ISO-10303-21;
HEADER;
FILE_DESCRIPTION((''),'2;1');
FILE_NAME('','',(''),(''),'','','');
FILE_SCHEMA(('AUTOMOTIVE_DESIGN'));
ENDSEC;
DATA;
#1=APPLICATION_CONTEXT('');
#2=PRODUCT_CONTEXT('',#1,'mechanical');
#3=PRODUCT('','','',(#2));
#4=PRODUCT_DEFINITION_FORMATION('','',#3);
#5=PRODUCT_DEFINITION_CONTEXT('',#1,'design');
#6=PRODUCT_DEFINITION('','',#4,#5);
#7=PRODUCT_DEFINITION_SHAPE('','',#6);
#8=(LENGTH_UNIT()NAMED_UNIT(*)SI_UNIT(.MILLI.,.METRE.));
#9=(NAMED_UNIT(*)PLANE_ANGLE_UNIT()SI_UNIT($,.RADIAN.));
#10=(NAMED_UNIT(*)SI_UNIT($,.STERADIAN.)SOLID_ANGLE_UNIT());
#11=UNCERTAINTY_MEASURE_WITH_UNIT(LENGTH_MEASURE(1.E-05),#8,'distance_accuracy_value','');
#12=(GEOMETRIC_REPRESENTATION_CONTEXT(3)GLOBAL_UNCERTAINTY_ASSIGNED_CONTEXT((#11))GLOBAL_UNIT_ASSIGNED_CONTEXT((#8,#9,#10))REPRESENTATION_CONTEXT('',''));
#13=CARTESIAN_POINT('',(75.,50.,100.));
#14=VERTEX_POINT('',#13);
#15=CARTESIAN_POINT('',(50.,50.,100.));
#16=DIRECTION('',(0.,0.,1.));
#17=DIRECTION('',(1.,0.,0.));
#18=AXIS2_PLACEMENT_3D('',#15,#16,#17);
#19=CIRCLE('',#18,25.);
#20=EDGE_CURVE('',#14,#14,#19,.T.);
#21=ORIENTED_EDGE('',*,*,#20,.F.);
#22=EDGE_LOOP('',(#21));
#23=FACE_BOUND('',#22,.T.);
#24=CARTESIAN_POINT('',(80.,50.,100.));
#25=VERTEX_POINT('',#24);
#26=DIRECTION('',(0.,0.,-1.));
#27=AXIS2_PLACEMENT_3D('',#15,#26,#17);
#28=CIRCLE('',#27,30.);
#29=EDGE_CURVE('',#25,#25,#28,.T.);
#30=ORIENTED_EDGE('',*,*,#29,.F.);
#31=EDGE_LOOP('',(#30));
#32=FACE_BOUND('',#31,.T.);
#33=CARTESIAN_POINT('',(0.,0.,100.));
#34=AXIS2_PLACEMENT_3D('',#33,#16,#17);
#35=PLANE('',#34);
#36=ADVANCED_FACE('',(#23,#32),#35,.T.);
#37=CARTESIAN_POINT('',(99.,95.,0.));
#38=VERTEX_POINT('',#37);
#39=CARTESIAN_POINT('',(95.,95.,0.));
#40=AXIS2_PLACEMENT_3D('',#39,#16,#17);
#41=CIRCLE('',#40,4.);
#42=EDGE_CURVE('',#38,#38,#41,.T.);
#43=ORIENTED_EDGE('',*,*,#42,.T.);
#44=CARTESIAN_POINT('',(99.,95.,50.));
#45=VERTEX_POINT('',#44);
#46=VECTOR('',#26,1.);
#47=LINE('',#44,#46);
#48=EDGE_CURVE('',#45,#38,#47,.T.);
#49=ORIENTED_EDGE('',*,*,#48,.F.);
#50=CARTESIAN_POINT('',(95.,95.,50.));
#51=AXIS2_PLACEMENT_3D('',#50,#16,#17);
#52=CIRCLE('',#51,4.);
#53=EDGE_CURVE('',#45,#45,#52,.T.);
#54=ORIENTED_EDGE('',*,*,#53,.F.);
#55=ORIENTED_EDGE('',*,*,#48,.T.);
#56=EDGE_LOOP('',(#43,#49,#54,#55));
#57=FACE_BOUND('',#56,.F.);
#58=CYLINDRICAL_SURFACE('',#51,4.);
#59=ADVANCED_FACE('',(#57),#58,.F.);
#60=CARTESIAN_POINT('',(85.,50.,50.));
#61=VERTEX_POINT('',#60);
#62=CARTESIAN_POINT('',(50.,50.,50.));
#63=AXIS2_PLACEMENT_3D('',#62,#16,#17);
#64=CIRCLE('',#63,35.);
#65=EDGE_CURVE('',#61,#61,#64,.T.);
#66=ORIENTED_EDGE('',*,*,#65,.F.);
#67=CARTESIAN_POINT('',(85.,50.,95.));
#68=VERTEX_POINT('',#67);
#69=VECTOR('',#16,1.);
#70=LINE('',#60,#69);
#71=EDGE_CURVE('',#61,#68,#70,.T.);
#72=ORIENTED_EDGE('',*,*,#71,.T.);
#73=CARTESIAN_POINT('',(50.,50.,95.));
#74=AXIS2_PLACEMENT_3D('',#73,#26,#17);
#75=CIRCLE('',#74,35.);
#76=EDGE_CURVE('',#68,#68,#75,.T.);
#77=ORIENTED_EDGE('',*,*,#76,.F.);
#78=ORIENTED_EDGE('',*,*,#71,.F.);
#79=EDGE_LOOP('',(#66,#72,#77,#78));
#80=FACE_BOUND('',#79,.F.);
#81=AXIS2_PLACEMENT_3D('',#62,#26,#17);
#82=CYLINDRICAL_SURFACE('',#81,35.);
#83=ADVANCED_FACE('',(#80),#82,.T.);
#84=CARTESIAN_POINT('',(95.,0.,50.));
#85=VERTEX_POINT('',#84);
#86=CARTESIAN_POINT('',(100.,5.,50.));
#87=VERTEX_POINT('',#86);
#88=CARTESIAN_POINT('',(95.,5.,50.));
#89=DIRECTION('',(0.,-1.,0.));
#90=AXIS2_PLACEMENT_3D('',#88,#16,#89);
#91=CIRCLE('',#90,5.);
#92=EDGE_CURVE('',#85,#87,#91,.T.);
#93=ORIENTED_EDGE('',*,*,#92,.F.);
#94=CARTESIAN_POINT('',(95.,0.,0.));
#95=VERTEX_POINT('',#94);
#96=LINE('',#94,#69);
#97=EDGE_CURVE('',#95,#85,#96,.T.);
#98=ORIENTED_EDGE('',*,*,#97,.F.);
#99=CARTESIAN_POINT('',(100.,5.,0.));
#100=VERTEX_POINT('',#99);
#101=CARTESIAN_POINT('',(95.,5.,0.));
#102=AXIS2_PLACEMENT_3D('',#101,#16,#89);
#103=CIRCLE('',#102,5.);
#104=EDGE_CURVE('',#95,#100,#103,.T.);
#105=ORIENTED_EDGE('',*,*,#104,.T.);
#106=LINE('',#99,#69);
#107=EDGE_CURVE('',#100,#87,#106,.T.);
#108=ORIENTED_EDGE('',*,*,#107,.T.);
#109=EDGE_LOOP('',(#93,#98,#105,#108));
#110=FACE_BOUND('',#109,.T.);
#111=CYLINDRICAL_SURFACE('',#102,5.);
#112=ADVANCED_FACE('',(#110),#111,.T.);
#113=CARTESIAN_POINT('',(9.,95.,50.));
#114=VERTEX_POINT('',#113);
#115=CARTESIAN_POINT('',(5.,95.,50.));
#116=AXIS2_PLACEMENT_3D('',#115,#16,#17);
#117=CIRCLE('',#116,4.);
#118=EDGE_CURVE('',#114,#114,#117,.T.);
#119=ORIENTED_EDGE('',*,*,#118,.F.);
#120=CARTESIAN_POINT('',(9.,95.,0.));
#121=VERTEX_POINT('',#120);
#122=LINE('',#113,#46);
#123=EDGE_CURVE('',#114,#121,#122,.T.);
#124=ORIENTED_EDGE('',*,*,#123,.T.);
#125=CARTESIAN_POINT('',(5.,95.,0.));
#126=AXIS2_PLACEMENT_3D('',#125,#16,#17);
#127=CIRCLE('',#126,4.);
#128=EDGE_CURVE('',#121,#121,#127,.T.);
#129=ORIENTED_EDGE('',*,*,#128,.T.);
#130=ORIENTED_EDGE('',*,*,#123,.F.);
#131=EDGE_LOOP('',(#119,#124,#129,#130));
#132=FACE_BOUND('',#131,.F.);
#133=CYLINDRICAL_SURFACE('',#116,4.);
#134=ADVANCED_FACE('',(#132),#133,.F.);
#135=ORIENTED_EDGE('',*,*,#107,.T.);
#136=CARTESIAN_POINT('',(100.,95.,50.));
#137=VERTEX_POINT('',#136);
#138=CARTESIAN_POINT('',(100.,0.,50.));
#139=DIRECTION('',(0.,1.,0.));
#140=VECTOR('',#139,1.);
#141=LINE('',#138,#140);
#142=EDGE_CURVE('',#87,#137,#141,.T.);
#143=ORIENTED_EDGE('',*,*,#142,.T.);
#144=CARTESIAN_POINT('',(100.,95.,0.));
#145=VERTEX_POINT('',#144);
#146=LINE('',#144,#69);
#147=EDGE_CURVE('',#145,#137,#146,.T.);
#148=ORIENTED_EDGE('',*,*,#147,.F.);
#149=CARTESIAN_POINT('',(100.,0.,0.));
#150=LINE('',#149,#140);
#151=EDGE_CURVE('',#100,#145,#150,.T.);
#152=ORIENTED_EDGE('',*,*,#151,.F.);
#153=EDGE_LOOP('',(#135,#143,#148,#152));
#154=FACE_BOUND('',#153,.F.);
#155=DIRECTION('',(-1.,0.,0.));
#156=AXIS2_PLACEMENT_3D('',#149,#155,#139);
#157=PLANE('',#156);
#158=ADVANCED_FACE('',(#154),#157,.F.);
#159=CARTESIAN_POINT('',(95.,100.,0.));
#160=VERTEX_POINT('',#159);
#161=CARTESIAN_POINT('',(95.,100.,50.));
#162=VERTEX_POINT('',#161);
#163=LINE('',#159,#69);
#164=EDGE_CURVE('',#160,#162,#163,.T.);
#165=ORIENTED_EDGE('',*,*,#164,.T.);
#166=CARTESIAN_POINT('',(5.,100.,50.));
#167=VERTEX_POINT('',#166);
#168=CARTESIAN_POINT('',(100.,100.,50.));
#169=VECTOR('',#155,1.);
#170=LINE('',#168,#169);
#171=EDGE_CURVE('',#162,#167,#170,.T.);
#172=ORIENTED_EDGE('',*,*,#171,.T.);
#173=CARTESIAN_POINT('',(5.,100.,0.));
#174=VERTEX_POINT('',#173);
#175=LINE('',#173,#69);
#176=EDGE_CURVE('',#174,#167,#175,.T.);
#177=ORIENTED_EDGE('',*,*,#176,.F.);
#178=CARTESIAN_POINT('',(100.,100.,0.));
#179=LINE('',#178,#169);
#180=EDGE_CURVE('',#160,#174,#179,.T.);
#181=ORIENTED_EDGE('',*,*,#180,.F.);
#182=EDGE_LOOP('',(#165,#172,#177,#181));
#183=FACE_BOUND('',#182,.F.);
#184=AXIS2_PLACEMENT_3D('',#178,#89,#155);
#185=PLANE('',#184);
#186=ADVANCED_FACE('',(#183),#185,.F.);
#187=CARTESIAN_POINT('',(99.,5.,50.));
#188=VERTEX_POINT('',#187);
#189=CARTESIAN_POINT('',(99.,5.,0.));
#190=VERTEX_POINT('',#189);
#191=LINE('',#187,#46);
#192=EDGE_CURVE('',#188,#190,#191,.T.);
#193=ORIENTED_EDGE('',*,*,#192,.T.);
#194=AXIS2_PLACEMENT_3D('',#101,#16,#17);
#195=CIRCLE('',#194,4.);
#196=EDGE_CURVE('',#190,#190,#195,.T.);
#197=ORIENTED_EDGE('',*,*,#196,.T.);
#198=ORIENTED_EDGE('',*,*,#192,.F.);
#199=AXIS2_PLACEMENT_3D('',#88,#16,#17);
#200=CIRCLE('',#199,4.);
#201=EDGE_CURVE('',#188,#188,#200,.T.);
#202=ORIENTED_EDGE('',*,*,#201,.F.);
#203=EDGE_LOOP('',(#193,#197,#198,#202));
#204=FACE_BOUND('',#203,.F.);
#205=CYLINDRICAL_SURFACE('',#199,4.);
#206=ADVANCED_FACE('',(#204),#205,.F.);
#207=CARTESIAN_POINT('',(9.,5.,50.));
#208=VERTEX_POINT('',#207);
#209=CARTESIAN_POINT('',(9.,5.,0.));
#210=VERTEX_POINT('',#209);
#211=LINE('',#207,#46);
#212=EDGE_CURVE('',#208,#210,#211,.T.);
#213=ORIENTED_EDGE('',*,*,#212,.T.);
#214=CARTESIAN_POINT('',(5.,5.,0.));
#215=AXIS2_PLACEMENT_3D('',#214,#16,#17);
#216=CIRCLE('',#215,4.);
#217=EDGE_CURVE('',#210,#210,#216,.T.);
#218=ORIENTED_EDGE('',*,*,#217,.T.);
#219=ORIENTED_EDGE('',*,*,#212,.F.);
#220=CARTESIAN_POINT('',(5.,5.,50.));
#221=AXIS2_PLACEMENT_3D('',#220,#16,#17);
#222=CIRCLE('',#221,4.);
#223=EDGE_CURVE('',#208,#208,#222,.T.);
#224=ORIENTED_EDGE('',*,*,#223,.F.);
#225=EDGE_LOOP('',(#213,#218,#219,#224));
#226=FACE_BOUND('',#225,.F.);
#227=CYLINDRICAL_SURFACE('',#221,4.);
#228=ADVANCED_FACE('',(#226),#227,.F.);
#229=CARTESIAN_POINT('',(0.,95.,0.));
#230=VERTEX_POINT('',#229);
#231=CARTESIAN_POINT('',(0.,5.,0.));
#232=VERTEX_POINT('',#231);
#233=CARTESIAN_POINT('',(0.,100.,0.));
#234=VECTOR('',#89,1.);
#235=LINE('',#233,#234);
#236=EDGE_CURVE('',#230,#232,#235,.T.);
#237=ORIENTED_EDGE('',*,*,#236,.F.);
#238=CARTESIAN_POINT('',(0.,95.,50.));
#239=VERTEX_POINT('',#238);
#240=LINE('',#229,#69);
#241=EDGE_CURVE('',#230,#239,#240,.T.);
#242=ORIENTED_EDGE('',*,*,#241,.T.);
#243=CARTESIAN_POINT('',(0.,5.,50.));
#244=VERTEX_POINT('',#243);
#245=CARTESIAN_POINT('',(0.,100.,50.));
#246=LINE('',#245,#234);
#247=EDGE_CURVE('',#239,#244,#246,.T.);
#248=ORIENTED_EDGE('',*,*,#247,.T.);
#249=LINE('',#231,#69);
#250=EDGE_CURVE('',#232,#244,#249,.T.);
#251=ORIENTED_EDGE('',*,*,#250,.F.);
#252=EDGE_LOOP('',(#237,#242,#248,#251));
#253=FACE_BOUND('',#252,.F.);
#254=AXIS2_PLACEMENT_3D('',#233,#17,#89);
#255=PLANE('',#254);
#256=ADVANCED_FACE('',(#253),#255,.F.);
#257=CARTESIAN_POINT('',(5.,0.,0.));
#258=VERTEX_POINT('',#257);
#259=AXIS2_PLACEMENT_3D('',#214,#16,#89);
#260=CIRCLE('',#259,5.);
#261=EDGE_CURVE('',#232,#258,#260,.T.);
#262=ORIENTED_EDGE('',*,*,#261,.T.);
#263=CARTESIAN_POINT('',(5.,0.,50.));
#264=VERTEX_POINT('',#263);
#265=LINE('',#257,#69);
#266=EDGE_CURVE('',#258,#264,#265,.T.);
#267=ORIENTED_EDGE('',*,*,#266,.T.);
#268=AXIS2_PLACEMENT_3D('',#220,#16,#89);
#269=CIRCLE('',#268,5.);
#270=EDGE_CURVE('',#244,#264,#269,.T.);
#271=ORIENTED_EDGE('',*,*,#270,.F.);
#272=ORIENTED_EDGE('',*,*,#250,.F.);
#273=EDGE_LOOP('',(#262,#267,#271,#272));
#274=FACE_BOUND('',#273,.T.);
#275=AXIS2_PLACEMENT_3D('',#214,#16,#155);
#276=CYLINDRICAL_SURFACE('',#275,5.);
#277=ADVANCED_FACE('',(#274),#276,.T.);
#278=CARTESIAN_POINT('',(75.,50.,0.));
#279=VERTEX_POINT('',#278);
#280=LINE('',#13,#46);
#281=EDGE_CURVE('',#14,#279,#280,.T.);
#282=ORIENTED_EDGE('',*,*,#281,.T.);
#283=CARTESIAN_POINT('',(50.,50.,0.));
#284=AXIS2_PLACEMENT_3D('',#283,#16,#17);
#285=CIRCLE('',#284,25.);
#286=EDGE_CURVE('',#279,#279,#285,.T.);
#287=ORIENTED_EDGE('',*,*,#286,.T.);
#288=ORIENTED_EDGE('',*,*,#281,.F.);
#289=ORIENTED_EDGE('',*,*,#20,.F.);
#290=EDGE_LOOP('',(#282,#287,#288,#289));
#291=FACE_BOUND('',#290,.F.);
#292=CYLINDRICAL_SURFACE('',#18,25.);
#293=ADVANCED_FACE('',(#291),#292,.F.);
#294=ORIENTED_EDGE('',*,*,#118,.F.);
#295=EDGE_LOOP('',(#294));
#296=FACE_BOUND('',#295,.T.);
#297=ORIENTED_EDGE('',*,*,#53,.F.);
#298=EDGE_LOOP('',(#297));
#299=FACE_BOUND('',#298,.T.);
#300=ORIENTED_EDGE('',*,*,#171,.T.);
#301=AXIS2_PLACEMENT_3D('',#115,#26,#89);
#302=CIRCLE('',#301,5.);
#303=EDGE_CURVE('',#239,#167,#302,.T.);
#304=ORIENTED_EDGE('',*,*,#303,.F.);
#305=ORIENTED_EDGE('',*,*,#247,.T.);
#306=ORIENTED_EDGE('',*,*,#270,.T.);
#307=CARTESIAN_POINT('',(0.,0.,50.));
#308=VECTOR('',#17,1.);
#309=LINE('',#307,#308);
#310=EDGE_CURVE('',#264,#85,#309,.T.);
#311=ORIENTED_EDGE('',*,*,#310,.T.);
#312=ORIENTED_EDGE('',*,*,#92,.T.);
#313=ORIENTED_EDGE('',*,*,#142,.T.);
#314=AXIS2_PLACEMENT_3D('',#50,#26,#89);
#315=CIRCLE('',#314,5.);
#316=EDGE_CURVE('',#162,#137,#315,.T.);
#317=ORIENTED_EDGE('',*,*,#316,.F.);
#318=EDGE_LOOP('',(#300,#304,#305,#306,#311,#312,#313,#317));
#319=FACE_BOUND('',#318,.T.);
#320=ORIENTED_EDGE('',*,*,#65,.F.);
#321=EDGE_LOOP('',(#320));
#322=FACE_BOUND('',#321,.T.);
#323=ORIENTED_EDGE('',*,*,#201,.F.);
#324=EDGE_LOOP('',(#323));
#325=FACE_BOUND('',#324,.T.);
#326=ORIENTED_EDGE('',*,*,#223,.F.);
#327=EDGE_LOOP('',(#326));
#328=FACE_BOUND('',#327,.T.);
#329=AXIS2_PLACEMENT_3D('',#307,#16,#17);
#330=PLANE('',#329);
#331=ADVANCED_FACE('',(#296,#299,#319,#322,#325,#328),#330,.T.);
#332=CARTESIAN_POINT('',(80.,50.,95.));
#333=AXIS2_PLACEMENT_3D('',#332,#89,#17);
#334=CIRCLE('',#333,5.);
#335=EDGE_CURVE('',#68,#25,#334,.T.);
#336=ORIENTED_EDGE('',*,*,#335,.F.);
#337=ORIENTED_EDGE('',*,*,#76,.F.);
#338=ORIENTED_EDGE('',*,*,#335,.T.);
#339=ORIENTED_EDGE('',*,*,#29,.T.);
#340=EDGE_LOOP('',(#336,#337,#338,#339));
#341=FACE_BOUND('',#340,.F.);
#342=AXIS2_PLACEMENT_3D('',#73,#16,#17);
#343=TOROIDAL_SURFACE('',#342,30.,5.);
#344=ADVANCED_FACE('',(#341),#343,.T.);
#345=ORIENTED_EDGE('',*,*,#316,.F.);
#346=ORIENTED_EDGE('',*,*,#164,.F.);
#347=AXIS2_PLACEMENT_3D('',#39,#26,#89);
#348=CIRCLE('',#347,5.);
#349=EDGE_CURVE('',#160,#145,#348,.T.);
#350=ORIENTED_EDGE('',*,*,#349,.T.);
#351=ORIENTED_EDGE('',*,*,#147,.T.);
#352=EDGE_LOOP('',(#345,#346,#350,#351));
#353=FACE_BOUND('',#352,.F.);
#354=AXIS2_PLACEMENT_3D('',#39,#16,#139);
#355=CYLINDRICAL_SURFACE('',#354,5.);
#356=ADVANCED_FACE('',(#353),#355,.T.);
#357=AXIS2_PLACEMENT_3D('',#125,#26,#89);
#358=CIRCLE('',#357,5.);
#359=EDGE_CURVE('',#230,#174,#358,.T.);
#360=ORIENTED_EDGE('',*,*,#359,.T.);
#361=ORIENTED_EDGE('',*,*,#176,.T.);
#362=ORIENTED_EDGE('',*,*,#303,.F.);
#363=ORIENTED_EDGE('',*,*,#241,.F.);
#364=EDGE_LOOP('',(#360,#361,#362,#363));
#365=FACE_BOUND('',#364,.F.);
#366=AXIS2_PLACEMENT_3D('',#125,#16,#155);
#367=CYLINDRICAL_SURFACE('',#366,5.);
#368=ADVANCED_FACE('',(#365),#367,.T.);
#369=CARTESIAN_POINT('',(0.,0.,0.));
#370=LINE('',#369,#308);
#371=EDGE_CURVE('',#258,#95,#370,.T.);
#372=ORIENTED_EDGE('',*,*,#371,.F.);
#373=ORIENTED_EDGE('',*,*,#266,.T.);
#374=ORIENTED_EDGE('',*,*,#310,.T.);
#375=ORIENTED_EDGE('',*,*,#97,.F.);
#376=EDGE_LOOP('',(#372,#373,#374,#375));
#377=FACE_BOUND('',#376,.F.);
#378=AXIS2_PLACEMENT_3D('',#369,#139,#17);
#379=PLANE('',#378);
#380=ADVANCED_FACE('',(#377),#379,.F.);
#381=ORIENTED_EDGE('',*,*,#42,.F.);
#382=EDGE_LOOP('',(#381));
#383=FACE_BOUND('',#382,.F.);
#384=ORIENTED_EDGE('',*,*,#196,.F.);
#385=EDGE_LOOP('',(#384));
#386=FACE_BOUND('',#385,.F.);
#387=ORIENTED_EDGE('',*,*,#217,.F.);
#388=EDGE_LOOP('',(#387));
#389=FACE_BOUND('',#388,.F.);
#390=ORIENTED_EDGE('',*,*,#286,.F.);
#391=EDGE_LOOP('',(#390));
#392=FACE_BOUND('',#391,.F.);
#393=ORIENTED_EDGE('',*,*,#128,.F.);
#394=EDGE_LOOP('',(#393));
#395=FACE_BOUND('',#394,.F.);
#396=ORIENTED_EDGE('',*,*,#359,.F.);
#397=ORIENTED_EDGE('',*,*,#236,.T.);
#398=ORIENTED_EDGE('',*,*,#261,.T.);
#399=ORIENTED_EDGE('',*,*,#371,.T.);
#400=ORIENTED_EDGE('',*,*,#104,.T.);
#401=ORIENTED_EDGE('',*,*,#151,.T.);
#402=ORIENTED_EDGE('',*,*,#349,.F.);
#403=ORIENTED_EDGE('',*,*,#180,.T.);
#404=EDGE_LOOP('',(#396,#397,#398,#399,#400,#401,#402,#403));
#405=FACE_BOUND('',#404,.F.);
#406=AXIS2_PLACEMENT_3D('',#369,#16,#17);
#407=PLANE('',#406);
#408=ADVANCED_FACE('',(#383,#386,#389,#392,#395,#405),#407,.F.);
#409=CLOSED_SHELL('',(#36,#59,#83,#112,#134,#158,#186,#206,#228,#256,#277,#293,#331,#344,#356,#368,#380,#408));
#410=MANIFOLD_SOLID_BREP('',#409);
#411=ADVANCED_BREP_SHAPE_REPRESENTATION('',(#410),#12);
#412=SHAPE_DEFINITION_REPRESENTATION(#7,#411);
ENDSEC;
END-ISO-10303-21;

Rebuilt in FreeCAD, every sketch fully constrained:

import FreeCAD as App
import Part
import Sketcher


def edges_at(feature, points):
    """Names of the edges that pass closest to the given points."""
    edges = feature.Shape.Edges
    near = lambda p: min(range(len(edges)), key=lambda i: edges[i].distToShape(Part.Vertex(*p))[0])
    return sorted({f"Edge{near(p) + 1}" for p in points})

doc = App.newDocument("Part")
body = doc.addObject("PartDesign::Body", "Body")

# Sketch on XY plane
sketch1 = body.newObject("Sketcher::SketchObject", "Sketch")
sketch1.AttachmentSupport = (doc.getObject("XY_Plane"), [""])
sketch1.MapMode = "FlatFace"
sketch1.addGeometry(Part.LineSegment(App.Vector(0, 100, 0), App.Vector(0, 0, 0)), False)
sketch1.addGeometry(Part.LineSegment(App.Vector(0, 0, 0), App.Vector(100, 0, 0)), False)
sketch1.addGeometry(Part.LineSegment(App.Vector(100, 0, 0), App.Vector(100, 100, 0)), False)
sketch1.addGeometry(Part.LineSegment(App.Vector(100, 100, 0), App.Vector(0, 100, 0)), False)
sketch1.addConstraint(Sketcher.Constraint("Coincident", 0, 2, 1, 1))
sketch1.addConstraint(Sketcher.Constraint("Coincident", 1, 2, 2, 1))
sketch1.addConstraint(Sketcher.Constraint("Coincident", 2, 2, 3, 1))
sketch1.addConstraint(Sketcher.Constraint("Coincident", 3, 2, 0, 1))
sketch1.addConstraint(Sketcher.Constraint("Vertical", 0))
sketch1.addConstraint(Sketcher.Constraint("Horizontal", 1))
sketch1.addConstraint(Sketcher.Constraint("Vertical", 2))
sketch1.addConstraint(Sketcher.Constraint("Horizontal", 3))
sketch1.addConstraint(Sketcher.Constraint("Coincident", 0, 2, -1, 1))
sketch1.addConstraint(Sketcher.Constraint("Equal", 3, 0))
sketch1.addConstraint(Sketcher.Constraint("DistanceX", 1, 1, 1, 2, 100.0))
pad1 = body.newObject("PartDesign::Pad", "Pad")
pad1.Profile = sketch1
pad1.Length = 50

# Sketch on XY plane
sketch2 = body.newObject("Sketcher::SketchObject", "Sketch001")
sketch2.AttachmentSupport = (doc.getObject("XY_Plane"), [""])
sketch2.MapMode = "FlatFace"
sketch2.AttachmentOffset = App.Placement(App.Vector(0, 0, 50), App.Rotation())
sketch2.addGeometry(Part.Circle(App.Vector(50, 50, 0), App.Vector(0, 0, 1), 35), False)
sketch2.addConstraint(Sketcher.Constraint("Diameter", 0, 70.0))
sketch2.addConstraint(Sketcher.Constraint("DistanceX", -1, 1, 0, 3, 50.0))
sketch2.addConstraint(Sketcher.Constraint("DistanceY", -1, 1, 0, 3, 50.0))
pad2 = body.newObject("PartDesign::Pad", "Pad001")
pad2.Profile = sketch2
pad2.Length = 50
doc.recompute()

fillet = body.newObject("PartDesign::Fillet", "Fillet")
fillet.Base = (pad2, edges_at(pad2, [
    (100, 100, 25),
    (0, 100, 25),
    (0, 0, 25),
    (100, 0, 25),
]))
fillet.Radius = 5

# Sketch on XY plane
sketch3 = body.newObject("Sketcher::SketchObject", "Sketch002")
sketch3.AttachmentSupport = (doc.getObject("XY_Plane"), [""])
sketch3.MapMode = "FlatFace"
sketch3.AttachmentOffset = App.Placement(App.Vector(0, 0, 100), App.Rotation())
sketch3.addGeometry(Part.Circle(App.Vector(50, 50, 0), App.Vector(0, 0, 1), 25), False)
sketch3.addConstraint(Sketcher.Constraint("Diameter", 0, 50.0))
sketch3.addConstraint(Sketcher.Constraint("DistanceX", -1, 1, 0, 3, 50.0))
sketch3.addConstraint(Sketcher.Constraint("DistanceY", -1, 1, 0, 3, 50.0))
pocket1 = body.newObject("PartDesign::Pocket", "Pocket")
pocket1.Profile = sketch3
pocket1.Length = 100
doc.recompute()

fillet2 = body.newObject("PartDesign::Fillet", "Fillet001")
fillet2.Base = (pocket1, edges_at(pocket1, [(15, 50, 100)]))
fillet2.Radius = 5

# Sketch on XY plane
sketch4 = body.newObject("Sketcher::SketchObject", "Sketch003")
sketch4.AttachmentSupport = (doc.getObject("XY_Plane"), [""])
sketch4.MapMode = "FlatFace"
sketch4.AttachmentOffset = App.Placement(App.Vector(0, 0, 50), App.Rotation())
sketch4.addGeometry(Part.Circle(App.Vector(5, 5, 0), App.Vector(0, 0, 1), 4), False)
sketch4.addGeometry(Part.Circle(App.Vector(95, 5, 0), App.Vector(0, 0, 1), 4), False)
sketch4.addGeometry(Part.Circle(App.Vector(95, 95, 0), App.Vector(0, 0, 1), 4), False)
sketch4.addGeometry(Part.Circle(App.Vector(5, 95, 0), App.Vector(0, 0, 1), 4), False)
sketch4.addConstraint(Sketcher.Constraint("Equal", 0, 1))
sketch4.addConstraint(Sketcher.Constraint("Equal", 1, 2))
sketch4.addConstraint(Sketcher.Constraint("Equal", 2, 3))
sketch4.addConstraint(Sketcher.Constraint("Horizontal", 0, 3, 1, 3))
sketch4.addConstraint(Sketcher.Constraint("Horizontal", 2, 3, 3, 3))
sketch4.addConstraint(Sketcher.Constraint("Vertical", 1, 3, 2, 3))
sketch4.addConstraint(Sketcher.Constraint("Vertical", 0, 3, 3, 3))
sketch4.addConstraint(Sketcher.Constraint("Diameter", 0, 8.0))
sketch4.addConstraint(Sketcher.Constraint("DistanceX", -1, 1, 0, 3, 5.0))
sketch4.addConstraint(Sketcher.Constraint("DistanceY", -1, 1, 0, 3, 5.0))
sketch4.addConstraint(Sketcher.Constraint("DistanceX", -1, 1, 1, 3, 95.0))
sketch4.addConstraint(Sketcher.Constraint("DistanceY", -1, 1, 2, 3, 95.0))
pocket2 = body.newObject("PartDesign::Pocket", "Pocket001")
pocket2.Profile = sketch4
pocket2.Length = 100

doc.recompute()
